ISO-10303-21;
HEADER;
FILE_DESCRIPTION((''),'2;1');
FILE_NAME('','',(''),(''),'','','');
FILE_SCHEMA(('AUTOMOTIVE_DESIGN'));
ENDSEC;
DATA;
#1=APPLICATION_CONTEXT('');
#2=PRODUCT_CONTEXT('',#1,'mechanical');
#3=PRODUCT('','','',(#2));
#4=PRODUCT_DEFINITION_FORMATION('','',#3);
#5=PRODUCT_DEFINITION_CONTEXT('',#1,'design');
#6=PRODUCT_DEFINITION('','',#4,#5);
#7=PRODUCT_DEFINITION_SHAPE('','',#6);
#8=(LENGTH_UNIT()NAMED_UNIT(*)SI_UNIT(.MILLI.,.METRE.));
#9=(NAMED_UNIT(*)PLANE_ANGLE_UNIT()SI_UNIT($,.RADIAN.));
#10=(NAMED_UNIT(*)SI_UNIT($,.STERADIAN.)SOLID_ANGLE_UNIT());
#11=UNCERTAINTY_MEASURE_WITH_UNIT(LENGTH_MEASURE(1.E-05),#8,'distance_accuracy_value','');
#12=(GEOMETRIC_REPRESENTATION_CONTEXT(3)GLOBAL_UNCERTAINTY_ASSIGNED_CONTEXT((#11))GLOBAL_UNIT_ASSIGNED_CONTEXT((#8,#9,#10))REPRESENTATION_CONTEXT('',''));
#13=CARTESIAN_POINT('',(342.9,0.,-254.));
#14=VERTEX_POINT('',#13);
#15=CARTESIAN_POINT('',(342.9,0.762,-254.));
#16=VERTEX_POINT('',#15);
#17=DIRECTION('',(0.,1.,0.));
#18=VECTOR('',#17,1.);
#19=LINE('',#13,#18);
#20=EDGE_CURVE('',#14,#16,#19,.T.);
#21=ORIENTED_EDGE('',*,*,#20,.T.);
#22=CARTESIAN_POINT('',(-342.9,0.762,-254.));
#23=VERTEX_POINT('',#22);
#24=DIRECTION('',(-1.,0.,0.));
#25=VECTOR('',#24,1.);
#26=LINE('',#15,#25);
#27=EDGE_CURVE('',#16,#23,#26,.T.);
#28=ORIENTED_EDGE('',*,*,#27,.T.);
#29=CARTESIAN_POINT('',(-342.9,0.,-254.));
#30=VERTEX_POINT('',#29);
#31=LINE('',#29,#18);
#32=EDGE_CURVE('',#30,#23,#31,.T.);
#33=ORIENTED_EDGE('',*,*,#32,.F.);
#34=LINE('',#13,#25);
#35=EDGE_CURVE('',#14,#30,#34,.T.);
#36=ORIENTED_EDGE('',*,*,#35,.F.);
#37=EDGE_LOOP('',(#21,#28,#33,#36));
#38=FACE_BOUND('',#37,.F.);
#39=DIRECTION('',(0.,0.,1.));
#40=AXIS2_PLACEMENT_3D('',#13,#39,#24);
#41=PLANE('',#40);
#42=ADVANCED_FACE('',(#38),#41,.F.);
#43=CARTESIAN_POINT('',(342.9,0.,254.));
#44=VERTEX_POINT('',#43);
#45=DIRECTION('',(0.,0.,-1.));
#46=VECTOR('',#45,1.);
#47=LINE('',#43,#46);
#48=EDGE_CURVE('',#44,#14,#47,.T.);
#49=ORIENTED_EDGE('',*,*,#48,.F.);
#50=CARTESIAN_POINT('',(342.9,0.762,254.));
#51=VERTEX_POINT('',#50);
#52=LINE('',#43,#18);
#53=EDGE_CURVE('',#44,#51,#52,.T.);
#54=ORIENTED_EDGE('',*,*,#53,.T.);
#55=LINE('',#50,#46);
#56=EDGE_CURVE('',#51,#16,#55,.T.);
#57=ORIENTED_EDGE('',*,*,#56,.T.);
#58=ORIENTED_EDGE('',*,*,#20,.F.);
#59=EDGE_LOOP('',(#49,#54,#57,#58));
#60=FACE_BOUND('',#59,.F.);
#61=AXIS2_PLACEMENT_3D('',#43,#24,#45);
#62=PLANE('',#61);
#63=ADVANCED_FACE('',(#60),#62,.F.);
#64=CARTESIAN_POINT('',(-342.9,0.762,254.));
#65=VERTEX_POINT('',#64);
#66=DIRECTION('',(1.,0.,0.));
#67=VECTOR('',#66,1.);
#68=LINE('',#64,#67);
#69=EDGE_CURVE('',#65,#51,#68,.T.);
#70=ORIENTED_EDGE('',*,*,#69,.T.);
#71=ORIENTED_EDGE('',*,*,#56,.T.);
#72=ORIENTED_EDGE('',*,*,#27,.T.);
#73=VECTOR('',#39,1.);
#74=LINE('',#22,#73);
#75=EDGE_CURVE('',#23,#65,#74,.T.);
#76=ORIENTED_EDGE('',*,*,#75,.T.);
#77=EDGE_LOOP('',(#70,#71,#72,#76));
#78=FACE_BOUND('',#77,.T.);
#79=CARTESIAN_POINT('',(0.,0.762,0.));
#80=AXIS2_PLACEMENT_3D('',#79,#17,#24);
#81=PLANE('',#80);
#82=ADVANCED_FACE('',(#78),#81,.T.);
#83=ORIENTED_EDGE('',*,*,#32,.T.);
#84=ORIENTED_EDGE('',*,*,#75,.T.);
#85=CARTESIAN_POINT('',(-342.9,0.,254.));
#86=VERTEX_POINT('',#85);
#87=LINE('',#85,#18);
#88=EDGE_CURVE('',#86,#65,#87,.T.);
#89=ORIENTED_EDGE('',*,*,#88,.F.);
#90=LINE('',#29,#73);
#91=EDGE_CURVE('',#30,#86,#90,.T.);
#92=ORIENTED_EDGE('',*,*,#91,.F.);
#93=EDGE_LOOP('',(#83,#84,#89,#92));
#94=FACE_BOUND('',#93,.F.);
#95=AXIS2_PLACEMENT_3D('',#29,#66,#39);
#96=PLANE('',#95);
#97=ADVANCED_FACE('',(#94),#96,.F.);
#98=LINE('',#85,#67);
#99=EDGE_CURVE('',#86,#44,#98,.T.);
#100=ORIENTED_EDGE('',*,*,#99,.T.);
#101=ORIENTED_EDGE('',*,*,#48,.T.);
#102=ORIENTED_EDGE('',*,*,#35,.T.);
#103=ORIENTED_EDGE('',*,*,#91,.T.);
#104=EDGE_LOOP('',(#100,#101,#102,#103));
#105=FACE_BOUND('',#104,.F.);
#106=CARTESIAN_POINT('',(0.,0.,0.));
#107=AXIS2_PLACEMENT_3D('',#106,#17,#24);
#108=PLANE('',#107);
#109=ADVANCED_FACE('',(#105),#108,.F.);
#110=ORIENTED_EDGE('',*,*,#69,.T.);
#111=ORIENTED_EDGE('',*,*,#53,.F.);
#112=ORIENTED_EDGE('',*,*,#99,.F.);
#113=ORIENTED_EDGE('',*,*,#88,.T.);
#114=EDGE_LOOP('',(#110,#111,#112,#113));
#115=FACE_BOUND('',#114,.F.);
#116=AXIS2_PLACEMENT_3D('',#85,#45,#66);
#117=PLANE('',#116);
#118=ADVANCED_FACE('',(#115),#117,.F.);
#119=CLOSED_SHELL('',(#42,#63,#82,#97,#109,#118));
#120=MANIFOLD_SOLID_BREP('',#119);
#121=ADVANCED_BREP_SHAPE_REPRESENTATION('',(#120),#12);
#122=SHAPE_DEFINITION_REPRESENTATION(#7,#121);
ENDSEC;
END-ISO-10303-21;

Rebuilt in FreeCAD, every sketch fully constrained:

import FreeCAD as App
import Part
import Sketcher
from FreeCAD import Vector
Q = App.Units.Quantity


def add_polygon(sketch, points):
    """Adds a closed chain of lines whose ends are joined by coincident constraints."""
    first, n = sketch.GeometryCount, len(points)
    for a, b in zip(points, points[1:] + points[:1]):
        sketch.addGeometry(Part.LineSegment(App.Vector(*a, 0), App.Vector(*b, 0)), False)
    for i in range(n):
        sketch.addConstraint(Sketcher.Constraint("Coincident", first + i, 2, first + (i + 1) % n, 1))

doc = App.newDocument("Part")
params = doc.addObject("Spreadsheet::Sheet", "Params")
for row, (alias, value) in enumerate([
    ("sketch1_width", "27 in"),
    ("sketch1_height", "20 in"),
    ("pad1_length", "0.03 in"),
], start=1):
    params.set(f"A{row}", alias)
    params.set(f"B{row}", "=" + value)
    params.setAlias(f"B{row}", alias)

body = doc.addObject("PartDesign::Body", "Body")

sketch1 = doc.addObject("Sketcher::SketchObject", "Sketch")
body.addObject(sketch1)
sketch1.AttachmentSupport = (doc.XZ_Plane, [""])
sketch1.MapMode = "FlatFace"
add_polygon(sketch1, [(-343, -254), (-343, 254), (343, 254), (343, -254)])
sketch1.addConstraint([
    Sketcher.Constraint("Vertical", 0),
    Sketcher.Constraint("Horizontal", 1),
    Sketcher.Constraint("Vertical", 2),
    Sketcher.Constraint("Horizontal", 3),
    Sketcher.Constraint("Symmetric", 0, 2, 2, 2, -1, 1),
    Sketcher.Constraint("DistanceX", 1, 1, 1, 2, Q("27 in")),
    Sketcher.Constraint("DistanceY", 0, 1, 0, 2, Q("20 in")),
])
sketch1.setExpression("Constraints[9]", "Params.sketch1_width")
sketch1.setExpression("Constraints[10]", "Params.sketch1_height")
pad1 = doc.addObject("PartDesign::Pad", "Pad")
body.addObject(pad1)
pad1.Profile = sketch1
pad1.setExpression("Length", "Params.pad1_length")
pad1.Reversed = True

doc.recompute()
